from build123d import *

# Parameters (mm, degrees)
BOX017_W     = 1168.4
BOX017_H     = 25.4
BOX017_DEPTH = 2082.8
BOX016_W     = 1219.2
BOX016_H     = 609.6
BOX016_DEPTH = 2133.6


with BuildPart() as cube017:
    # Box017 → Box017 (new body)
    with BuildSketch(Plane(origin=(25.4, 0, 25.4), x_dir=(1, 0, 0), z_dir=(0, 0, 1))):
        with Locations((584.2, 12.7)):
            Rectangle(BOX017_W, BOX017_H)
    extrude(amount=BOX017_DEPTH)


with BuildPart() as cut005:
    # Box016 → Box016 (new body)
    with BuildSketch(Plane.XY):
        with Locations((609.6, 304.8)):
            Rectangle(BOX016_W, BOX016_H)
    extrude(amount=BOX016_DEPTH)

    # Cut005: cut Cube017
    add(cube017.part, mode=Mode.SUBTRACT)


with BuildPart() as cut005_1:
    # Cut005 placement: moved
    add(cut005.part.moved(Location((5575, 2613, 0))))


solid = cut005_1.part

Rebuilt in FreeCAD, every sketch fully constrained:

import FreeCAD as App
import Part
import Sketcher
Q = App.Units.Quantity

doc = App.newDocument("Part")
body = doc.addObject("PartDesign::Body", "Body")

# Sketch on XY plane
sketch1 = body.newObject("Sketcher::SketchObject", "Sketch")
sketch1.AttachmentSupport = (doc.getObject("XY_Plane"), [""])
sketch1.MapMode = "FlatFace"
sketch1.AttachmentOffset = App.Placement(App.Vector(0, 0, 1 * 25.4), App.Rotation())
sketch1.addGeometry([
    Part.LineSegment(App.Vector(25, 25, 0), App.Vector(25, 0, 0)),
    Part.LineSegment(App.Vector(25, 0, 0), App.Vector(1194, 0, 0)),
    Part.LineSegment(App.Vector(1194, 0, 0), App.Vector(1194, 25, 0)),
    Part.LineSegment(App.Vector(1194, 25, 0), App.Vector(25, 25, 0)),
], False)
sketch1.addConstraint([
    Sketcher.Constraint("Coincident", 0, 2, 1, 1),
    Sketcher.Constraint("Coincident", 1, 2, 2, 1),
    Sketcher.Constraint("Coincident", 2, 2, 3, 1),
    Sketcher.Constraint("Coincident", 3, 2, 0, 1),
    Sketcher.Constraint("Vertical", 0),
    Sketcher.Constraint("Horizontal", 1),
    Sketcher.Constraint("Vertical", 2),
    Sketcher.Constraint("Horizontal", 3),
    Sketcher.Constraint("PointOnObject", 0, 2, -1),
    Sketcher.Constraint("DistanceX", 1, 1, 1, 2, Q("46 in")),
    Sketcher.Constraint("DistanceY", 0, 2, 0, 1, Q("1 in")),
    Sketcher.Constraint("DistanceX", -1, 1, 0, 2, Q("1 in")),
])
pad1 = body.newObject("PartDesign::Pad", "Pad")
pad1.Profile = sketch1
pad1.Length = Q("82 in")
body2 = doc.addObject("PartDesign::Body", "Body001")

# Sketch on XY plane
sketch2 = body2.newObject("Sketcher::SketchObject", "Sketch001")
sketch2.AttachmentSupport = (doc.getObject("XY_Plane001"), [""])
sketch2.MapMode = "FlatFace"
sketch2.addGeometry([
    Part.LineSegment(App.Vector(0, 610, 0), App.Vector(0, 0, 0)),
    Part.LineSegment(App.Vector(0, 0, 0), App.Vector(1219, 0, 0)),
    Part.LineSegment(App.Vector(1219, 0, 0), App.Vector(1219, 610, 0)),
    Part.LineSegment(App.Vector(1219, 610, 0), App.Vector(0, 610, 0)),
], False)
sketch2.addConstraint([
    Sketcher.Constraint("Coincident", 0, 2, 1, 1),
    Sketcher.Constraint("Coincident", 1, 2, 2, 1),
    Sketcher.Constraint("Coincident", 2, 2, 3, 1),
    Sketcher.Constraint("Coincident", 3, 2, 0, 1),
    Sketcher.Constraint("Vertical", 0),
    Sketcher.Constraint("Horizontal", 1),
    Sketcher.Constraint("Vertical", 2),
    Sketcher.Constraint("Horizontal", 3),
    Sketcher.Constraint("Coincident", 0, 2, -1, 1),
    Sketcher.Constraint("DistanceX", 1, 1, 1, 2, Q("48 in")),
    Sketcher.Constraint("DistanceY", 0, 2, 0, 1, Q("24 in")),
])
pad2 = body2.newObject("PartDesign::Pad", "Pad001")
pad2.Profile = sketch2
pad2.Length = Q("84 in")
doc.recompute()

boolean = body2.newObject("PartDesign::Boolean", "Boolean")
boolean.Type = "Cut"
boolean.addObjects([body])
body3 = doc.addObject("PartDesign::Body", "Body002")
doc.recompute()

body2.Placement = App.Placement(App.Vector(5575, 2613, 0), App.Rotation(App.Vector(0, 0, 1), 0))
boolean2 = body3.newObject("PartDesign::Boolean", "Boolean001")
boolean2.Type = "Fuse"
boolean2.addObjects([body2])

doc.recompute()
